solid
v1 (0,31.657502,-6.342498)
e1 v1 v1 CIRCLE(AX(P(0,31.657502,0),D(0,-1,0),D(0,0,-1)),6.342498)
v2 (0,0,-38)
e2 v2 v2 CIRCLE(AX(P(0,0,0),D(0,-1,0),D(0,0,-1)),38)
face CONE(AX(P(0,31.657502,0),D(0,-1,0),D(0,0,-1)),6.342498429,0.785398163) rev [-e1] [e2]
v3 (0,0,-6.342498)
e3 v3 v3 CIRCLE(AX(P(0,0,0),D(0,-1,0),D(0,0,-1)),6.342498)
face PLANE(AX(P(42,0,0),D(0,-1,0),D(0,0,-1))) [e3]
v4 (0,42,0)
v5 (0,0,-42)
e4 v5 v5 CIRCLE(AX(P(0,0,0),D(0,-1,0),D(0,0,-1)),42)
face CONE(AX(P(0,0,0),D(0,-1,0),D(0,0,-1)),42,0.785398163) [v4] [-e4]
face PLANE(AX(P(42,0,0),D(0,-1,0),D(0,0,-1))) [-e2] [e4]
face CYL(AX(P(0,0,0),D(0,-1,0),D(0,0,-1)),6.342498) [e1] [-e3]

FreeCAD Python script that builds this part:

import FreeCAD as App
import Part
import Sketcher
Q = App.Units.Quantity

doc = App.newDocument("Part")
body = doc.addObject("PartDesign::Body", "Body")

sketch1 = doc.addObject("Sketcher::SketchObject", "Sketch")
body.addObject(sketch1)
sketch1.AttachmentSupport = (doc.XY_Plane, [""])
sketch1.MapMode = "FlatFace"
sketch1.addGeometry([
    Part.LineSegment(App.Vector(0, 42, 0), App.Vector(0, 0, 0)),
    Part.LineSegment(App.Vector(0, 0, 0), App.Vector(42, 0, 0)),
    Part.LineSegment(App.Vector(42, 0, 0), App.Vector(0, 42, 0)),
], False)
sketch1.addConstraint([
    Sketcher.Constraint("Coincident", 0, 2, 1, 1),
    Sketcher.Constraint("Coincident", 1, 2, 2, 1),
    Sketcher.Constraint("Coincident", 2, 2, 0, 1),
    Sketcher.Constraint("Vertical", 0),
    Sketcher.Constraint("Horizontal", 1),
    Sketcher.Constraint("Coincident", 0, 2, -1, 1),
    Sketcher.Constraint("Equal", 1, 0),
    Sketcher.Constraint("DistanceX", 1, 1, 1, 2, Q("42 mm")),
])
revolution = doc.addObject("PartDesign::Revolution", "Revolution")
body.addObject(revolution)
revolution.Profile = sketch1
revolution.ReferenceAxis = (sketch1, ["V_Axis"])
revolution.Angle = 360

sketch2 = doc.addObject("Sketcher::SketchObject", "Sketch001")
body.addObject(sketch2)
sketch2.AttachmentSupport = (doc.XY_Plane, [""])
sketch2.MapMode = "FlatFace"
sketch2.addGeometry([
    Part.LineSegment(App.Vector(6, 32, 0), App.Vector(6, 0, 0)),
    Part.LineSegment(App.Vector(6, 0, 0), App.Vector(38, 0, 0)),
    Part.LineSegment(App.Vector(38, 0, 0), App.Vector(6, 32, 0)),
], False)
sketch2.addConstraint([
    Sketcher.Constraint("Coincident", 0, 2, 1, 1),
    Sketcher.Constraint("Coincident", 1, 2, 2, 1),
    Sketcher.Constraint("Coincident", 2, 2, 0, 1),
    Sketcher.Constraint("Vertical", 0),
    Sketcher.Constraint("Horizontal", 1),
    Sketcher.Constraint("PointOnObject", 0, 2, -1),
    Sketcher.Constraint("Equal", 1, 0),
    Sketcher.Constraint("DistanceX", -1, 1, 1, 2, Q("38 mm")),
    Sketcher.Constraint("DistanceX", 1, 1, 1, 2, Q("31.657502 mm")),
])
groove = doc.addObject("PartDesign::Groove", "Groove")
body.addObject(groove)
groove.Profile = sketch2
groove.ReferenceAxis = (sketch2, ["V_Axis"])
groove.Angle = 360

doc.recompute()
